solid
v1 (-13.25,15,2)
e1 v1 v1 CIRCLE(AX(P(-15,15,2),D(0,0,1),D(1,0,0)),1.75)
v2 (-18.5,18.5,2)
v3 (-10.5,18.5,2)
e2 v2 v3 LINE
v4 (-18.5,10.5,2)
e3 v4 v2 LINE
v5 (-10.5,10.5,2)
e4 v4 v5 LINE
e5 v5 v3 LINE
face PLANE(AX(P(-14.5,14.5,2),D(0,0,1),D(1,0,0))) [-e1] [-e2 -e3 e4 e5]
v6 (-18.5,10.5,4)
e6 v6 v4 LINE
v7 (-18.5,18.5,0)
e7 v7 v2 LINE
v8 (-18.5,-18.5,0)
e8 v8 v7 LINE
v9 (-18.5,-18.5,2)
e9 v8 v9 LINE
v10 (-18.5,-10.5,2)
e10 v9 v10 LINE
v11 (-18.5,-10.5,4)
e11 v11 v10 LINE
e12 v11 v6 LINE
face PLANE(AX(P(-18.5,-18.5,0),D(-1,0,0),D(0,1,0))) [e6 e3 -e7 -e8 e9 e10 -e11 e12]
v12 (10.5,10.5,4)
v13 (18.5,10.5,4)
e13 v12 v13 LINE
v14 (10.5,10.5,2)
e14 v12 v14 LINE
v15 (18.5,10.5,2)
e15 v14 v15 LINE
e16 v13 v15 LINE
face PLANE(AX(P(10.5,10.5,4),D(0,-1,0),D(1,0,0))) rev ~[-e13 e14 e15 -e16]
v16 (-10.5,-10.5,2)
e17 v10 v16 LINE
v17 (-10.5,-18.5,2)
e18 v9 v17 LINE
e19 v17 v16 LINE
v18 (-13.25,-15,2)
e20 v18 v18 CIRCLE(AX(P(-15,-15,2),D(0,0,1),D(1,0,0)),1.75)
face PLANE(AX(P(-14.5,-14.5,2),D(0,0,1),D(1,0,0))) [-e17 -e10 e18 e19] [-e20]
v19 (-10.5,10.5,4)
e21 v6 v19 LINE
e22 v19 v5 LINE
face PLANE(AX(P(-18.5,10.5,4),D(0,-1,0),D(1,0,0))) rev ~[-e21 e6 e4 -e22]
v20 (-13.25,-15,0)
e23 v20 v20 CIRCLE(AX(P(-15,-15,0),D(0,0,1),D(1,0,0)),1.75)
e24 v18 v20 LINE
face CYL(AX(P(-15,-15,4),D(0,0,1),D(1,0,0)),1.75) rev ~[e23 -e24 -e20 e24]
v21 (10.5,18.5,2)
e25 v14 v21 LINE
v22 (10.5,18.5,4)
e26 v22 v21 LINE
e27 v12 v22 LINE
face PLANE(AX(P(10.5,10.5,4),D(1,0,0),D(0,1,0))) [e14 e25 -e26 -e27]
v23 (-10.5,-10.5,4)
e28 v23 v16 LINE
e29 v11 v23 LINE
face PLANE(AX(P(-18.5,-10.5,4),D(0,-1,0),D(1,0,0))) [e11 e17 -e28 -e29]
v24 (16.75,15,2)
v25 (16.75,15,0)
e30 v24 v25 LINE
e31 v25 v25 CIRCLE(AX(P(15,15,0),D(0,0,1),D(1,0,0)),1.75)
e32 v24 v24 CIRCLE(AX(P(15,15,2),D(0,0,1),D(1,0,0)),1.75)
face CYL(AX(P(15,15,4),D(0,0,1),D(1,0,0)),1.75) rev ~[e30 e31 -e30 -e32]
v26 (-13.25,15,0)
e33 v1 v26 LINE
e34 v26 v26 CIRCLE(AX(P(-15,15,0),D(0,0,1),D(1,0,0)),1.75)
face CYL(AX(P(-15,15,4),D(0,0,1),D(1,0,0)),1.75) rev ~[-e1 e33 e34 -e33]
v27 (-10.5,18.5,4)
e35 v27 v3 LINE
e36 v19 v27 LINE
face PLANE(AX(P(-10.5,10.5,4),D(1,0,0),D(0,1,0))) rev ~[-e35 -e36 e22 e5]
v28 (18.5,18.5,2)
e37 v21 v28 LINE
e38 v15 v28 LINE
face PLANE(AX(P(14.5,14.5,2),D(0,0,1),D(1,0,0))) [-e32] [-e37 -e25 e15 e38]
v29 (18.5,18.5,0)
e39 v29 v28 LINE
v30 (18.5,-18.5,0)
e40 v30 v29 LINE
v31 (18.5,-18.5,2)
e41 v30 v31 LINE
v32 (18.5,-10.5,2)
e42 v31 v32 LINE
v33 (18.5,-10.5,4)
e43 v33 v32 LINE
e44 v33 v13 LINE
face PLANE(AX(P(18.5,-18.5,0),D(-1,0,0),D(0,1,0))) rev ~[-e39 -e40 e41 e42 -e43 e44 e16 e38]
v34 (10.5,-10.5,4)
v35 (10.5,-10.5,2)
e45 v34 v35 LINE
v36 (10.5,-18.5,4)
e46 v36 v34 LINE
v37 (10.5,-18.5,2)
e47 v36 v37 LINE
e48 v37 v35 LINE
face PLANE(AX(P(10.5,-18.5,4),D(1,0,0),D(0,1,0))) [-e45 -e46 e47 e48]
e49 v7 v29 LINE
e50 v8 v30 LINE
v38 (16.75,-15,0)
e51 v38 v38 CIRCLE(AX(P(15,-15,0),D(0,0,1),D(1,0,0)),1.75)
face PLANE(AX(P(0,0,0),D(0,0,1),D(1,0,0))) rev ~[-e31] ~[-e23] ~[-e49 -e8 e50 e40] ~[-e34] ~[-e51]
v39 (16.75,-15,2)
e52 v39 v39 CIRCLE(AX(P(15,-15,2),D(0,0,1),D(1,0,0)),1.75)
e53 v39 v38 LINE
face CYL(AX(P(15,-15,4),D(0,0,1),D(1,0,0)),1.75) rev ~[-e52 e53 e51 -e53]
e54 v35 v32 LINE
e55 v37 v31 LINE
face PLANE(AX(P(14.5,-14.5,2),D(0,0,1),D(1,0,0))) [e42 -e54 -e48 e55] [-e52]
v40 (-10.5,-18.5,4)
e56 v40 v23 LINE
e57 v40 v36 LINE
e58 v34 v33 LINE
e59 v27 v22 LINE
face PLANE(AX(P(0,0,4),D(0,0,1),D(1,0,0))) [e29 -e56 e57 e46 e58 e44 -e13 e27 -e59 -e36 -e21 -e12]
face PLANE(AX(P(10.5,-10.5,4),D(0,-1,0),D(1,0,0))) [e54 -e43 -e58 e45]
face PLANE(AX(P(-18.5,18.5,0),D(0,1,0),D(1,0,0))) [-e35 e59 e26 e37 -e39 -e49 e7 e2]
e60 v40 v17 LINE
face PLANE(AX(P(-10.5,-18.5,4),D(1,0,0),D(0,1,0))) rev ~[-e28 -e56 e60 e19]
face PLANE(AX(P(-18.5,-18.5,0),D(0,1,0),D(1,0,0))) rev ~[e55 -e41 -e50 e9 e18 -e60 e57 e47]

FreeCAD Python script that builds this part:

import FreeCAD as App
import Part
import Sketcher

V = App.Vector
Q = App.Units.Quantity

doc = App.newDocument("Part")
params = doc.addObject("Spreadsheet::Sheet", "Params")
for row, (alias, value) in enumerate([
    ("sketch1_width", "37 mm"),
    ("pad1_length", "4 mm"),
    ("sketch2_diameter", "3.5 mm"),
    ("sketch3_width", "8 mm"),
    ("pocket2_length", "2 mm"),
], start=1):
    params.set(f"A{row}", alias)
    params.set(f"B{row}", "=" + value)
    params.setAlias(f"B{row}", alias)

body = doc.addObject("PartDesign::Body", "Body")

# Sketch on XY plane
sketch1 = doc.addObject("Sketcher::SketchObject", "Sketch")
body.addObject(sketch1)
sketch1.AttachmentSupport = (doc.XY_Plane, [""])
sketch1.MapMode = "FlatFace"
sketch1.addGeometry(Part.LineSegment(V(-18, 18, 0), V(-18, -18, 0)), False)
sketch1.addGeometry(Part.LineSegment(V(-18, -18, 0), V(18, -18, 0)), False)
sketch1.addGeometry(Part.LineSegment(V(18, -18, 0), V(18, 18, 0)), False)
sketch1.addGeometry(Part.LineSegment(V(18, 18, 0), V(-18, 18, 0)), False)
sketch1.addConstraint(Sketcher.Constraint("Coincident", 0, 2, 1, 1))
sketch1.addConstraint(Sketcher.Constraint("Coincident", 1, 2, 2, 1))
sketch1.addConstraint(Sketcher.Constraint("Coincident", 2, 2, 3, 1))
sketch1.addConstraint(Sketcher.Constraint("Coincident", 3, 2, 0, 1))
sketch1.addConstraint(Sketcher.Constraint("Vertical", 0))
sketch1.addConstraint(Sketcher.Constraint("Horizontal", 1))
sketch1.addConstraint(Sketcher.Constraint("Vertical", 2))
sketch1.addConstraint(Sketcher.Constraint("Horizontal", 3))
sketch1.addConstraint(Sketcher.Constraint("Symmetric", 0, 2, 2, 2, -1, 1))
sketch1.addConstraint(Sketcher.Constraint("Equal", 3, 0))
sketch1.addConstraint(Sketcher.Constraint("DistanceX", 1, 1, 1, 2, Q("37 mm")))
sketch1.setExpression("Constraints[10]", "Params.sketch1_width")
pad1 = doc.addObject("PartDesign::Pad", "Pad")
body.addObject(pad1)
pad1.Profile = sketch1
pad1.setExpression("Length", "Params.pad1_length")

# Sketch on XY plane
sketch2 = doc.addObject("Sketcher::SketchObject", "Sketch001")
body.addObject(sketch2)
sketch2.AttachmentSupport = (doc.XY_Plane, [""])
sketch2.MapMode = "FlatFace"
sketch2.AttachmentOffset = App.Placement(V(0, 0, 4), App.Rotation())
sketch2.addGeometry(Part.Circle(V(-15, 15, 0), V(0, 0, 1), 1.8), False)
sketch2.addGeometry(Part.Circle(V(15, 15, 0), V(0, 0, 1), 1.8), False)
sketch2.addGeometry(Part.Circle(V(-15, -15, 0), V(0, 0, 1), 1.8), False)
sketch2.addGeometry(Part.Circle(V(15, -15, 0), V(0, 0, 1), 1.8), False)
sketch2.addConstraint(Sketcher.Constraint("Equal", 0, 1))
sketch2.addConstraint(Sketcher.Constraint("Equal", 1, 2))
sketch2.addConstraint(Sketcher.Constraint("Equal", 2, 3))
sketch2.addConstraint(Sketcher.Constraint("Symmetric", 1, 3, 2, 3, -1, 1))
sketch2.addConstraint(Sketcher.Constraint("Symmetric", 0, 3, 3, 3, -1, 1))
sketch2.addConstraint(Sketcher.Constraint("Symmetric", 0, 3, 1, 3, -2))
sketch2.addConstraint(Sketcher.Constraint("Diameter", 0, Q("3.5 mm")))
sketch2.addConstraint(Sketcher.Constraint("DistanceX", 0, 3, -1, 1, Q("15 mm")))
sketch2.addConstraint(Sketcher.Constraint("DistanceY", -1, 1, 0, 3, Q("15 mm")))
sketch2.setExpression("Constraints[6]", "Params.sketch2_diameter")
pocket1 = doc.addObject("PartDesign::Pocket", "Pocket")
body.addObject(pocket1)
pocket1.Profile = sketch2
pocket1.Type = "ThroughAll"

# Sketch on XY plane
sketch3 = doc.addObject("Sketcher::SketchObject", "Sketch002")
body.addObject(sketch3)
sketch3.AttachmentSupport = (doc.XY_Plane, [""])
sketch3.MapMode = "FlatFace"
sketch3.AttachmentOffset = App.Placement(V(0, 0, 4), App.Rotation())
sketch3.addGeometry(Part.LineSegment(V(-18, 18, 0), V(-18, 10, 0)), False)
sketch3.addGeometry(Part.LineSegment(V(-18, 10, 0), V(-10, 10, 0)), False)
sketch3.addGeometry(Part.LineSegment(V(-10, 10, 0), V(-10, 18, 0)), False)
sketch3.addGeometry(Part.LineSegment(V(-10, 18, 0), V(-18, 18, 0)), False)
sketch3.addGeometry(Part.LineSegment(V(10, 18, 0), V(10, 10, 0)), False)
sketch3.addGeometry(Part.LineSegment(V(10, 10, 0), V(18, 10, 0)), False)
sketch3.addGeometry(Part.LineSegment(V(18, 10, 0), V(18, 18, 0)), False)
sketch3.addGeometry(Part.LineSegment(V(18, 18, 0), V(10, 18, 0)), False)
sketch3.addGeometry(Part.LineSegment(V(10, -10, 0), V(10, -18, 0)), False)
sketch3.addGeometry(Part.LineSegment(V(10, -18, 0), V(18, -18, 0)), False)
sketch3.addGeometry(Part.LineSegment(V(18, -18, 0), V(18, -10, 0)), False)
sketch3.addGeometry(Part.LineSegment(V(18, -10, 0), V(10, -10, 0)), False)
sketch3.addGeometry(Part.LineSegment(V(-18, -10, 0), V(-18, -18, 0)), False)
sketch3.addGeometry(Part.LineSegment(V(-18, -18, 0), V(-10, -18, 0)), False)
sketch3.addGeometry(Part.LineSegment(V(-10, -18, 0), V(-10, -10, 0)), False)
sketch3.addGeometry(Part.LineSegment(V(-10, -10, 0), V(-18, -10, 0)), False)
sketch3.addConstraint(Sketcher.Constraint("Coincident", 0, 2, 1, 1))
sketch3.addConstraint(Sketcher.Constraint("Coincident", 1, 2, 2, 1))
sketch3.addConstraint(Sketcher.Constraint("Coincident", 2, 2, 3, 1))
sketch3.addConstraint(Sketcher.Constraint("Coincident", 3, 2, 0, 1))
sketch3.addConstraint(Sketcher.Constraint("Coincident", 4, 2, 5, 1))
sketch3.addConstraint(Sketcher.Constraint("Coincident", 5, 2, 6, 1))
sketch3.addConstraint(Sketcher.Constraint("Coincident", 6, 2, 7, 1))
sketch3.addConstraint(Sketcher.Constraint("Coincident", 7, 2, 4, 1))
sketch3.addConstraint(Sketcher.Constraint("Coincident", 8, 2, 9, 1))
sketch3.addConstraint(Sketcher.Constraint("Coincident", 9, 2, 10, 1))
sketch3.addConstraint(Sketcher.Constraint("Coincident", 10, 2, 11, 1))
sketch3.addConstraint(Sketcher.Constraint("Coincident", 11, 2, 8, 1))
sketch3.addConstraint(Sketcher.Constraint("Coincident", 12, 2, 13, 1))
sketch3.addConstraint(Sketcher.Constraint("Coincident", 13, 2, 14, 1))
sketch3.addConstraint(Sketcher.Constraint("Coincident", 14, 2, 15, 1))
sketch3.addConstraint(Sketcher.Constraint("Coincident", 15, 2, 12, 1))
sketch3.addConstraint(Sketcher.Constraint("Vertical", 0))
sketch3.addConstraint(Sketcher.Constraint("Horizontal", 1))
sketch3.addConstraint(Sketcher.Constraint("Vertical", 2))
sketch3.addConstraint(Sketcher.Constraint("Horizontal", 3))
sketch3.addConstraint(Sketcher.Constraint("Vertical", 4))
sketch3.addConstraint(Sketcher.Constraint("Horizontal", 5))
sketch3.addConstraint(Sketcher.Constraint("Vertical", 6))
sketch3.addConstraint(Sketcher.Constraint("Horizontal", 7))
sketch3.addConstraint(Sketcher.Constraint("Vertical", 8))
sketch3.addConstraint(Sketcher.Constraint("Horizontal", 9))
sketch3.addConstraint(Sketcher.Constraint("Vertical", 10))
sketch3.addConstraint(Sketcher.Constraint("Horizontal", 11))
sketch3.addConstraint(Sketcher.Constraint("Vertical", 12))
sketch3.addConstraint(Sketcher.Constraint("Horizontal", 13))
sketch3.addConstraint(Sketcher.Constraint("Vertical", 14))
sketch3.addConstraint(Sketcher.Constraint("Horizontal", 15))
sketch3.addConstraint(Sketcher.Constraint("Symmetric", 2, 2, 8, 2, -1, 1))
sketch3.addConstraint(Sketcher.Constraint("Symmetric", 0, 2, 10, 2, -1, 1))
sketch3.addConstraint(Sketcher.Constraint("Symmetric", 6, 2, 12, 2, -1, 1))
sketch3.addConstraint(Sketcher.Constraint("Symmetric", 4, 2, 14, 2, -1, 1))
sketch3.addConstraint(Sketcher.Constraint("Symmetric", 1, 2, 4, 2, -2))
sketch3.addConstraint(Sketcher.Constraint("Symmetric", 3, 2, 6, 2, -2))
sketch3.addConstraint(Sketcher.Constraint("Equal", 15, 0))
sketch3.addConstraint(Sketcher.Constraint("DistanceX", 1, 1, 1, 2, Q("8 mm")))
sketch3.addConstraint(Sketcher.Constraint("DistanceX", 1, 2, 4, 2, Q("21 mm")))
sketch3.addConstraint(Sketcher.Constraint("DistanceY", 8, 2, 4, 2, Q("29 mm")))
sketch3.setExpression("Constraints[39]", "Params.sketch3_width")
pocket2 = doc.addObject("PartDesign::Pocket", "Pocket001")
body.addObject(pocket2)
pocket2.Profile = sketch3
pocket2.setExpression("Length", "Params.pocket2_length")

doc.recompute()
